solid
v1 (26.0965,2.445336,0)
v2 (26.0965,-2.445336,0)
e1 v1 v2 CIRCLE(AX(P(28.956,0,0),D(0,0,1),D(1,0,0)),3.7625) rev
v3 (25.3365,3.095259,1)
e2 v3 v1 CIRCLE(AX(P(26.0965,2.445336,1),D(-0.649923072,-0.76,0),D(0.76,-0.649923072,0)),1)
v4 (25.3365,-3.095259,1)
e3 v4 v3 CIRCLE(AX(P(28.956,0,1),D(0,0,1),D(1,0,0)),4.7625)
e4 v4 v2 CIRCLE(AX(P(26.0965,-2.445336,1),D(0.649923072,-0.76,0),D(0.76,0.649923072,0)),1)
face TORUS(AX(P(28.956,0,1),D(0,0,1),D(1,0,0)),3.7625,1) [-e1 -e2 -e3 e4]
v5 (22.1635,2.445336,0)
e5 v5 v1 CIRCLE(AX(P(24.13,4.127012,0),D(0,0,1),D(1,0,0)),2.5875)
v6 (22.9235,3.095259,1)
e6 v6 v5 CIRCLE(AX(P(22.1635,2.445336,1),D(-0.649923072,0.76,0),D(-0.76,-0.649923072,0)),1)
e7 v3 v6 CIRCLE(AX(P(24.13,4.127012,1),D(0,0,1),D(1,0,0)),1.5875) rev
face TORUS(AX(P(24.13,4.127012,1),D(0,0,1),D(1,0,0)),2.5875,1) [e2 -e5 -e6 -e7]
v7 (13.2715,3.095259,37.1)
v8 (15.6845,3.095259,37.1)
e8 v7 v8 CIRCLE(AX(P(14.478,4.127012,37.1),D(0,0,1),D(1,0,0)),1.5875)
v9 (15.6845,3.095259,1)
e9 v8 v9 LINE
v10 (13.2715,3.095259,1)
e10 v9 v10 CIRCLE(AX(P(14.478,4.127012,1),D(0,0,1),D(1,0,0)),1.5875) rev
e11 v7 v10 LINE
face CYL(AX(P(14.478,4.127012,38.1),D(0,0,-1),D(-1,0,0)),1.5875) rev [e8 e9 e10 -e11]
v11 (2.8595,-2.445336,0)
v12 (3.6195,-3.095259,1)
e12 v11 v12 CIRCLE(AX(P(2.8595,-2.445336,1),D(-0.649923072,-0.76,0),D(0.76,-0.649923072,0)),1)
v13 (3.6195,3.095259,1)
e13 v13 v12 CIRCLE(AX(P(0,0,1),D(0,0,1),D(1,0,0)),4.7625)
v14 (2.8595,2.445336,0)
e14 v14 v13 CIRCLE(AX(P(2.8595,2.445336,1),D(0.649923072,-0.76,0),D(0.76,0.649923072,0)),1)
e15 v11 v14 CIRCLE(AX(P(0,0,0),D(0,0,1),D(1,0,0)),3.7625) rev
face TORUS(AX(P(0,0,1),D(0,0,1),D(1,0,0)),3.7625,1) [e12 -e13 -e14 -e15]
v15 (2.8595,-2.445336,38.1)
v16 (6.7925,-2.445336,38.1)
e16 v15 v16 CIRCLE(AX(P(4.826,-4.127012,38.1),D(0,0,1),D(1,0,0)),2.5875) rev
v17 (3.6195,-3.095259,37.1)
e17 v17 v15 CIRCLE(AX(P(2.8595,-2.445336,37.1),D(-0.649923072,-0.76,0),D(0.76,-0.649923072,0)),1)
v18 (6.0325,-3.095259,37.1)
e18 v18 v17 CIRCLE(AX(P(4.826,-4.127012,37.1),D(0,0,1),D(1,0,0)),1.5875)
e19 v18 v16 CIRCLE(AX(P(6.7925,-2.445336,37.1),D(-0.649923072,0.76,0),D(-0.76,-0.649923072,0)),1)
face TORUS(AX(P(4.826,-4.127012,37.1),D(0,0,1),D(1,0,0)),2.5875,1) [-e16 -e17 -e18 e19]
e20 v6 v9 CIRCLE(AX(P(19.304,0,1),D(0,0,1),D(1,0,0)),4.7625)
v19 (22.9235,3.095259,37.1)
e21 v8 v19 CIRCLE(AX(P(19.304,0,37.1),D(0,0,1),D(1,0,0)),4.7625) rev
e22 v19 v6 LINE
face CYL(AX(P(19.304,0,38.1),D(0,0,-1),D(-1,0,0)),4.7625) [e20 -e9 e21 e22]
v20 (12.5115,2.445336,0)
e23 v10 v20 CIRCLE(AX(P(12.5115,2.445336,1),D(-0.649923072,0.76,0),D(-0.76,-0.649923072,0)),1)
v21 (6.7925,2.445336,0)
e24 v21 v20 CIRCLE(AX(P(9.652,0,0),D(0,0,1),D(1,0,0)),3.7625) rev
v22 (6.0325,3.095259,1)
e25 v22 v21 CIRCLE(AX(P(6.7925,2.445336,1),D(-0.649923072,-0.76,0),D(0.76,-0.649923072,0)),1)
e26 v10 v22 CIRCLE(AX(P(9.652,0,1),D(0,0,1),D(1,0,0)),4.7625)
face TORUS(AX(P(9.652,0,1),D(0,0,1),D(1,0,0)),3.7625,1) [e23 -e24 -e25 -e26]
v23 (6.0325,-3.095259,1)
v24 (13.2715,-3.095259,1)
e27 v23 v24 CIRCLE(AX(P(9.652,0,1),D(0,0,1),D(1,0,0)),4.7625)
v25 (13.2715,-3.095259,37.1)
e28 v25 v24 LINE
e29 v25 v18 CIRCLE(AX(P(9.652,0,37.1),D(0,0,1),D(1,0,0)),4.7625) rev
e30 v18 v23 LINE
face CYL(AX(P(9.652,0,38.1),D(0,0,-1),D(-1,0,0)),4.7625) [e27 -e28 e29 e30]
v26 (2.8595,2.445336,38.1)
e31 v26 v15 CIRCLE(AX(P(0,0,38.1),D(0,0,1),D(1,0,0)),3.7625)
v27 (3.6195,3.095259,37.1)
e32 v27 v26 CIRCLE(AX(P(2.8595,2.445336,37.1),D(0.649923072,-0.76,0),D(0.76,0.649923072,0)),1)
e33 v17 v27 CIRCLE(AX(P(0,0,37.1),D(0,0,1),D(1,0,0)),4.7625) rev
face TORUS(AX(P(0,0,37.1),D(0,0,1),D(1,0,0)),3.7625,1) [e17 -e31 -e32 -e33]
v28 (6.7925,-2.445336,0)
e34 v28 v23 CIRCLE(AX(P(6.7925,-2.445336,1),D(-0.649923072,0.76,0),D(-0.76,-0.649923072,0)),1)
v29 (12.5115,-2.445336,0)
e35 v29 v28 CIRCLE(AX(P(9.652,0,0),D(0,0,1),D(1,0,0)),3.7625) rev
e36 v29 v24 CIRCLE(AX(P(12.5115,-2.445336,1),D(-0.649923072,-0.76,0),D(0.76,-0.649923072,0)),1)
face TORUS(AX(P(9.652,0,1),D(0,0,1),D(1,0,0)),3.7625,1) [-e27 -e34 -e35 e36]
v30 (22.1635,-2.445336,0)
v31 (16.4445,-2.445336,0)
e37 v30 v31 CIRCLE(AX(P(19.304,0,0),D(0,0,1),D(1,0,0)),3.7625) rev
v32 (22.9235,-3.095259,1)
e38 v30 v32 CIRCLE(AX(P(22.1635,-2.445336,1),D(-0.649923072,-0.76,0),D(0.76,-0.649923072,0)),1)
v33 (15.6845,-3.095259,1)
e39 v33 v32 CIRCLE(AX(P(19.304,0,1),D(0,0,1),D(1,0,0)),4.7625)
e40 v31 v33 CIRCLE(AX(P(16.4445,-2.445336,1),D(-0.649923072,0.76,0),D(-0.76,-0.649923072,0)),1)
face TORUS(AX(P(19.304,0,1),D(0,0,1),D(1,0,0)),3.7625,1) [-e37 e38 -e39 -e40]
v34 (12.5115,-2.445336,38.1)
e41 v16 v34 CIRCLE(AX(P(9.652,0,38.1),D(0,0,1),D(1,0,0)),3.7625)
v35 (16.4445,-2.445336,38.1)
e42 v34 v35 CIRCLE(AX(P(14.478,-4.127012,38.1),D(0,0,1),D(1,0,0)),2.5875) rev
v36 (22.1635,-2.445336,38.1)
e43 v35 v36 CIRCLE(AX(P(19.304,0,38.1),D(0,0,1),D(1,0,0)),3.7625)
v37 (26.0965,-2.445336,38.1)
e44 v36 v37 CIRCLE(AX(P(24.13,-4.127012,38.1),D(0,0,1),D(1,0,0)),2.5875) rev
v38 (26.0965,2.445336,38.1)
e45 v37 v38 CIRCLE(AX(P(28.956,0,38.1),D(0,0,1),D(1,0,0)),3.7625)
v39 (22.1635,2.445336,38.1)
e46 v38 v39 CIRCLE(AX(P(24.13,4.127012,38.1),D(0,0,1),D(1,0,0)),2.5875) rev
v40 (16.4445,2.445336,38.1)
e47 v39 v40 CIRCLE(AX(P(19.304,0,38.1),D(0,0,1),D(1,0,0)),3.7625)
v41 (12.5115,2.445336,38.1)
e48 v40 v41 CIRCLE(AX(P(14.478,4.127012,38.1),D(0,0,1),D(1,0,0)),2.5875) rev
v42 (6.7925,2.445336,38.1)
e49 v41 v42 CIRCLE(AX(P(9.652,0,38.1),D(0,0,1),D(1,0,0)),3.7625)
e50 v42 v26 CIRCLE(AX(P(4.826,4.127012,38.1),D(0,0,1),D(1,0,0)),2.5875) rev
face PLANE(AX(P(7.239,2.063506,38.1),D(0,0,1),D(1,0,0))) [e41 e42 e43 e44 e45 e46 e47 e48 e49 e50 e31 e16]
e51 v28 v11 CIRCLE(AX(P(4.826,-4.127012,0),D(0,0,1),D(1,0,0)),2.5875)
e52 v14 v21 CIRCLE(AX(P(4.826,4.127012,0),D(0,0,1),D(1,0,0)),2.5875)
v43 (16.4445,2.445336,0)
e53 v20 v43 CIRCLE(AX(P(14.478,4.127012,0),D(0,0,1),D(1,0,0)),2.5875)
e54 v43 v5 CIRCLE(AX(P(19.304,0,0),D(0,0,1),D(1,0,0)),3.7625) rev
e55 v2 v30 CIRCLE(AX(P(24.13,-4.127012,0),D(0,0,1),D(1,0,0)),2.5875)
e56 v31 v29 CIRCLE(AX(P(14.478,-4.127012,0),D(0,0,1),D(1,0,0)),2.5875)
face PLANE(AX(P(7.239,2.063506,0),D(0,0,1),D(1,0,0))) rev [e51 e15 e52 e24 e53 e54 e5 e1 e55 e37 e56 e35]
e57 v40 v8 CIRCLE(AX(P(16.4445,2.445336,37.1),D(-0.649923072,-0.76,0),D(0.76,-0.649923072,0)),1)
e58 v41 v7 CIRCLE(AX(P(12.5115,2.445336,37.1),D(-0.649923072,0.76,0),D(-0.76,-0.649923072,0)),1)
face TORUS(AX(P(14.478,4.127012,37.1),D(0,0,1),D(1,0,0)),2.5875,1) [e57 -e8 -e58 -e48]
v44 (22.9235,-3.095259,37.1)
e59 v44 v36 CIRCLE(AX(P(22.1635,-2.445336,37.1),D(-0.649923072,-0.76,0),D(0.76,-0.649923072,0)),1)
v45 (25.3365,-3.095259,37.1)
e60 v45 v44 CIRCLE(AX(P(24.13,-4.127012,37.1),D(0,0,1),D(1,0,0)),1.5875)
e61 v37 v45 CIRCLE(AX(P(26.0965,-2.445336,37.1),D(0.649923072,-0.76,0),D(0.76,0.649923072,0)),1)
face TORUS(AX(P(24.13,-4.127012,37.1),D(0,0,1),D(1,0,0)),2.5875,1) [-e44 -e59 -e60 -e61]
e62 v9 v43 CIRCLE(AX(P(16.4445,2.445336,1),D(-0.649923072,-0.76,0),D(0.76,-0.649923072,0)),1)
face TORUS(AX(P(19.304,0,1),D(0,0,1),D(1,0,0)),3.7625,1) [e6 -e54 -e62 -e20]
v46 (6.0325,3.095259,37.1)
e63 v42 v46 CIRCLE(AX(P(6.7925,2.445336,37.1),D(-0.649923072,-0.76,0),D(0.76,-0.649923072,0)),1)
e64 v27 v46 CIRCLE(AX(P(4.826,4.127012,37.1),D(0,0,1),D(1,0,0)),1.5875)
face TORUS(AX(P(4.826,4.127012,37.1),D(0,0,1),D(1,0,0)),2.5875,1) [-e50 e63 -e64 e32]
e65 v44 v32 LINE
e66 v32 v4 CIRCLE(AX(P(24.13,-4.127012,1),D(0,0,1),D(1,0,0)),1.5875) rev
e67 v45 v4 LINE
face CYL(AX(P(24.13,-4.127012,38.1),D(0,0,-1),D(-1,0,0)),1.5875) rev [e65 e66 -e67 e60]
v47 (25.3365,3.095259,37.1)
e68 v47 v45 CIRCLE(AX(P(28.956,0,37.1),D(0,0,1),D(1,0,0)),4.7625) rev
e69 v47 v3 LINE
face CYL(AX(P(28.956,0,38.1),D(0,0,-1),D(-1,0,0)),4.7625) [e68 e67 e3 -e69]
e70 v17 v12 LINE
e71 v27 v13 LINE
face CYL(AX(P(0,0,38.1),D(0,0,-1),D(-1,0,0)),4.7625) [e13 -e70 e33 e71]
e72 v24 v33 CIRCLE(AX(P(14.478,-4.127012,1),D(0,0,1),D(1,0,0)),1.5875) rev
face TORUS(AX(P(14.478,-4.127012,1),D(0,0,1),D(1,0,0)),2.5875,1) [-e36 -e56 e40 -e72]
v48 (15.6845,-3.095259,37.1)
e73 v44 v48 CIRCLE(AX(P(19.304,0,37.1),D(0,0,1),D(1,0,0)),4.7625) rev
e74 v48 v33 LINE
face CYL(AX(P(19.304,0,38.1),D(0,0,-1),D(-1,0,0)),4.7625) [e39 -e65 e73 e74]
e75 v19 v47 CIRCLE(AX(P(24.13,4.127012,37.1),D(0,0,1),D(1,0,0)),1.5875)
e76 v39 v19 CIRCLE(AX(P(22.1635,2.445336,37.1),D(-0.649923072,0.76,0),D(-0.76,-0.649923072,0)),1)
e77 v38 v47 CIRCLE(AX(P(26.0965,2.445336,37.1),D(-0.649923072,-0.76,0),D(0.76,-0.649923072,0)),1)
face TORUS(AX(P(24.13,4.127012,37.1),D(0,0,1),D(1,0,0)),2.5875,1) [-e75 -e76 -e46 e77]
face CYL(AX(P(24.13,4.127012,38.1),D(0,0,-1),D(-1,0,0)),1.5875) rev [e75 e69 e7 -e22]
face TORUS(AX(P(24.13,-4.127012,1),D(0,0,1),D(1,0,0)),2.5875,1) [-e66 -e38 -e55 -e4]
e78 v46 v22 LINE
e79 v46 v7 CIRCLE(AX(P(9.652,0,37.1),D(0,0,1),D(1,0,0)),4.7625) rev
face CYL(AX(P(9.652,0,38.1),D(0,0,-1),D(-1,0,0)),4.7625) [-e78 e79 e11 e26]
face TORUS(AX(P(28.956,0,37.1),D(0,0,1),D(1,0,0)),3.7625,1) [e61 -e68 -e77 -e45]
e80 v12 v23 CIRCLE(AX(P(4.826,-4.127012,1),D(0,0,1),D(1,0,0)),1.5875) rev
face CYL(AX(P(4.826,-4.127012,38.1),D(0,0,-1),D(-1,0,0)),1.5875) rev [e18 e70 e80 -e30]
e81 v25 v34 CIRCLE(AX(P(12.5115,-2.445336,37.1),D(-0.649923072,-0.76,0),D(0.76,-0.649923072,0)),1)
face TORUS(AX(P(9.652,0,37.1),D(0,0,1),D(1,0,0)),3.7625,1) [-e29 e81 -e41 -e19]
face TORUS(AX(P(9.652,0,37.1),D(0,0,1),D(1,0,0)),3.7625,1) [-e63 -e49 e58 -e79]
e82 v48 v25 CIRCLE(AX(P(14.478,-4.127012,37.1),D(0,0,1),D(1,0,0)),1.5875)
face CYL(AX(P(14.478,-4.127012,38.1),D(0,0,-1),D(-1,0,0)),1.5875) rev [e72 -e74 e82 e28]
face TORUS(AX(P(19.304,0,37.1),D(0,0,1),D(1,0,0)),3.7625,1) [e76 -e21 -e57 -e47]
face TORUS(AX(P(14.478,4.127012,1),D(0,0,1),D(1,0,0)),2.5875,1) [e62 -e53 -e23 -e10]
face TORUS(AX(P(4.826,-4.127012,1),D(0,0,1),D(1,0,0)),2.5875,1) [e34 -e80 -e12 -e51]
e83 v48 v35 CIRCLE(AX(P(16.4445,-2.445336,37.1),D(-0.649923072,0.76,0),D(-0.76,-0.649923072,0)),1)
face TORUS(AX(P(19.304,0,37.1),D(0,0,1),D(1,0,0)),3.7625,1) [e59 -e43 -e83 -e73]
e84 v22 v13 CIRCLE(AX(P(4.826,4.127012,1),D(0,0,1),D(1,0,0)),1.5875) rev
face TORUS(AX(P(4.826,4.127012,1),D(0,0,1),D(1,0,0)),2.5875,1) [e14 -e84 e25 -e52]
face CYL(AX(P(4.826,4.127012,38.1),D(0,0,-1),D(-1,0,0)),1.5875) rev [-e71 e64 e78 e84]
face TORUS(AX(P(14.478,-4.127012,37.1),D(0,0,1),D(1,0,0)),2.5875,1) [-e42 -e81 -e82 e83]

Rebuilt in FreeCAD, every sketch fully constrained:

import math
import FreeCAD as App
import Part
import Sketcher

V = App.Vector
Q = App.Units.Quantity


def edges_at(feature, points):
    """Names of the edges that pass closest to the given points."""
    edges = feature.Shape.Edges
    near = lambda p: min(range(len(edges)), key=lambda i: edges[i].distToShape(Part.Vertex(*p))[0])
    return sorted({f"Edge{near(p) + 1}" for p in points})

doc = App.newDocument("Part")
body = doc.addObject("PartDesign::Body", "Body")

# Sketch on XY plane
sketch1 = body.newObject("Sketcher::SketchObject", "Sketch")
sketch1.AttachmentSupport = (doc.getObject("XY_Plane"), [""])
sketch1.MapMode = "FlatFace"
sketch1.addGeometry([
    Part.ArcOfCircle(Part.Circle(V(0, 0, 0), V(0, 0, 1), 4.8), math.radians(41), math.radians(319)),  # 0
    Part.ArcOfCircle(Part.Circle(V(4.8, -4.1, 0), V(0, 0, 1), 1.6), math.radians(41), math.radians(139)),  # 1
    Part.ArcOfCircle(Part.Circle(V(9.7, 0, 0), V(0, 0, 1), 4.8), math.radians(-139), math.radians(-41)),  # 2
    Part.ArcOfCircle(Part.Circle(V(14.5, -4.1, 0), V(0, 0, 1), 1.6), math.radians(41), math.radians(139)),  # 3
    Part.ArcOfCircle(Part.Circle(V(19.3, 0, 0), V(0, 0, 1), 4.8), math.radians(-139), math.radians(-41)),  # 4
    Part.ArcOfCircle(Part.Circle(V(24.1, -4.1, 0), V(0, 0, 1), 1.6), math.radians(41), math.radians(139)),  # 5
    Part.ArcOfCircle(Part.Circle(V(29, 0, 0), V(0, 0, 1), 4.8), math.radians(-139), math.radians(139)),  # 6
    Part.ArcOfCircle(Part.Circle(V(24.1, 4.1, 0), V(0, 0, 1), 1.6), math.radians(-139), math.radians(-41)),  # 7
    Part.ArcOfCircle(Part.Circle(V(19.3, 0, 0), V(0, 0, 1), 4.8), math.radians(41), math.radians(139)),  # 8
    Part.ArcOfCircle(Part.Circle(V(14.5, 4.1, 0), V(0, 0, 1), 1.6), math.radians(-139), math.radians(-41)),  # 9
    Part.ArcOfCircle(Part.Circle(V(9.7, 0, 0), V(0, 0, 1), 4.8), math.radians(41), math.radians(139)),  # 10
    Part.ArcOfCircle(Part.Circle(V(4.8, 4.1, 0), V(0, 0, 1), 1.6), math.radians(-139), math.radians(-41)),  # 11
], False)
sketch1.addConstraint([
    Sketcher.Constraint("Tangent", 0, 2, 1, 2),
    Sketcher.Constraint("Tangent", 1, 1, 2, 1),
    Sketcher.Constraint("Tangent", 2, 2, 3, 2),
    Sketcher.Constraint("Tangent", 3, 1, 4, 1),
    Sketcher.Constraint("Tangent", 4, 2, 5, 2),
    Sketcher.Constraint("Tangent", 5, 1, 6, 1),
    Sketcher.Constraint("Tangent", 6, 2, 7, 2),
    Sketcher.Constraint("Tangent", 7, 1, 8, 1),
    Sketcher.Constraint("Tangent", 8, 2, 9, 2),
    Sketcher.Constraint("Tangent", 9, 1, 10, 1),
    Sketcher.Constraint("Tangent", 10, 2, 11, 2),
    Sketcher.Constraint("Tangent", 11, 1, 0, 1),
    Sketcher.Constraint("Coincident", 0, 3, -1, 1),
    Sketcher.Constraint("Coincident", 8, 3, 4, 3),
    Sketcher.Constraint("Coincident", 10, 3, 2, 3),
    Sketcher.Constraint("Equal", 0, 2),
    Sketcher.Constraint("Equal", 1, 3),
    Sketcher.Constraint("Equal", 2, 4),
    Sketcher.Constraint("Equal", 3, 5),
    Sketcher.Constraint("Equal", 4, 6),
    Sketcher.Constraint("Equal", 5, 7),
    Sketcher.Constraint("Equal", 6, 8),
    Sketcher.Constraint("Equal", 7, 9),
    Sketcher.Constraint("Equal", 8, 10),
    Sketcher.Constraint("Equal", 9, 11),
    Sketcher.Constraint("Symmetric", 5, 3, 7, 3, -1),
    Sketcher.Constraint("PointOnObject", 2, 3, -1),
    Sketcher.Constraint("Horizontal", 1, 3, 3, 3),
    Sketcher.Constraint("Horizontal", 3, 3, 5, 3),
    Sketcher.Constraint("Radius", 0, Q("0.1875 in")),
    Sketcher.Constraint("Radius", 1, Q("0.0625 in")),
    Sketcher.Constraint("DistanceX", -1, 1, 1, 3, Q("0.19 in")),
])
pad1 = body.newObject("PartDesign::Pad", "Pad")
pad1.Profile = sketch1
pad1.Length = Q("1.5 in")
doc.recompute()

fillet = body.newObject("PartDesign::Fillet", "Fillet")
fillet.Base = (pad1, edges_at(pad1, [
    (-4.763, 0, 38.1),
    (14.478, 2.54, 0),
    (19.304, 4.763, 0),
    (24.13, 2.54, 0),
    (33.718, 0, 0),
    (24.13, -2.54, 0),
    (19.304, -4.763, 0),
    (4.826, -2.54, 38.1),
    (14.478, -2.54, 0),
    (9.652, -4.763, 0),
    (4.826, -2.54, 0),
    (-4.763, 0, 0),
    (4.826, 2.54, 0),
    (9.652, 4.763, 0),
    (9.652, -4.763, 38.1),
    (14.478, -2.54, 38.1),
    (19.304, -4.763, 38.1),
    (24.13, -2.54, 38.1),
    (33.718, 0, 38.1),
    (24.13, 2.54, 38.1),
    (19.304, 4.763, 38.1),
    (14.478, 2.54, 38.1),
    (9.652, 4.763, 38.1),
    (4.826, 2.54, 38.1),
]))
fillet.Radius = 1

doc.recompute()
